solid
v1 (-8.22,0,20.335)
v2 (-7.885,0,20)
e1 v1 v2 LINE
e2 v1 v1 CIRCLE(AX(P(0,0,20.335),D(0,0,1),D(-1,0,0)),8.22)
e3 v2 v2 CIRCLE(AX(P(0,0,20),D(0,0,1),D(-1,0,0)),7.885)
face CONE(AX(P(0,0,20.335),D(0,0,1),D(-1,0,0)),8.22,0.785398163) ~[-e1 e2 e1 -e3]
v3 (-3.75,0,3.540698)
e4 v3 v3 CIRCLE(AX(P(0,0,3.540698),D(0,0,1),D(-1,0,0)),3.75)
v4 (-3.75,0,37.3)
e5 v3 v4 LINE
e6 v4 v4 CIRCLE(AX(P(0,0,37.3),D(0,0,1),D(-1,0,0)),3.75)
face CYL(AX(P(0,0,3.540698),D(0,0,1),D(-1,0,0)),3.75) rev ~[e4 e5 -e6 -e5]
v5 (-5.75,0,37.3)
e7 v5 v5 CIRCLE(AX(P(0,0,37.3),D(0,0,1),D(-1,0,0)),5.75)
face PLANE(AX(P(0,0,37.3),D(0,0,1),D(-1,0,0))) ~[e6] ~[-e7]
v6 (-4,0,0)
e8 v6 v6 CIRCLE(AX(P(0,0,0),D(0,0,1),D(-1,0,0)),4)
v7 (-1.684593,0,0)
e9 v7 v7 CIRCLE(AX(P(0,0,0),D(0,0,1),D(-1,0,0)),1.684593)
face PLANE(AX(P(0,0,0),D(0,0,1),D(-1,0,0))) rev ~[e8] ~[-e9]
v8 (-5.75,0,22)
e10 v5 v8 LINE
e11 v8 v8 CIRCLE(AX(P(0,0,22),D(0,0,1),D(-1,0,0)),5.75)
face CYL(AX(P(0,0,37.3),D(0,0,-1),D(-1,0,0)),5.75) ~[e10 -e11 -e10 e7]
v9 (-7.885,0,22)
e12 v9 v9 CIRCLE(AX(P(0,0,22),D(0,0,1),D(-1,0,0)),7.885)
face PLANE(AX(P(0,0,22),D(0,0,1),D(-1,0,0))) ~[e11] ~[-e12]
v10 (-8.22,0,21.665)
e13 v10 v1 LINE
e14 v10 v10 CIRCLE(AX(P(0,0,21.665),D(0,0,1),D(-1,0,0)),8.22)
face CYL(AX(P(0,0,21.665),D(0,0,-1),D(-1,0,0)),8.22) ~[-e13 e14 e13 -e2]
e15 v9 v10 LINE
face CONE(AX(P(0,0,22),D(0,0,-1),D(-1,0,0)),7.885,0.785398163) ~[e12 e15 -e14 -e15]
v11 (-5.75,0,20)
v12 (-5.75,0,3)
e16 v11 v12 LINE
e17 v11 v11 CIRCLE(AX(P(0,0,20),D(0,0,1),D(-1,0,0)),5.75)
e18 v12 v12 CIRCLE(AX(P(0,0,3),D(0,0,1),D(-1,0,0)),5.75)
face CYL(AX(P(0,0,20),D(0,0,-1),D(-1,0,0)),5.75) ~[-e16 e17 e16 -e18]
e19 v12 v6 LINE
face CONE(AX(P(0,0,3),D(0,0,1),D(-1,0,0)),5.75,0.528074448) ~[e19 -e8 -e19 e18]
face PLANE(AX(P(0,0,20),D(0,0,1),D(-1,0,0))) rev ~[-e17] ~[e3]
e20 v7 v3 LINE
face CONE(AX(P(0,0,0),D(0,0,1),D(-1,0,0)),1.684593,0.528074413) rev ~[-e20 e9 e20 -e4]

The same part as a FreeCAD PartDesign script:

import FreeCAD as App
import Part
import Sketcher
from FreeCAD import Vector


def add_polygon(sketch, points):
    """Adds a closed chain of lines whose ends are joined by coincident constraints."""
    first, n = sketch.GeometryCount, len(points)
    for a, b in zip(points, points[1:] + points[:1]):
        sketch.addGeometry(Part.LineSegment(App.Vector(*a, 0), App.Vector(*b, 0)), False)
    for i in range(n):
        sketch.addConstraint(Sketcher.Constraint("Coincident", first + i, 2, first + (i + 1) % n, 1))

doc = App.newDocument("Part")
body = doc.addObject("PartDesign::Body", "Body")

# Sketch on XZ plane
sketch1 = body.newObject("Sketcher::SketchObject", "Sketch")
sketch1.AttachmentSupport = (doc.getObject("XZ_Plane"), [""])
sketch1.MapMode = "FlatFace"
add_polygon(sketch1, [(-1.68, 0), (-3.75, 3.54), (-3.75, 37.3), (-5.75, 37.3), (-5.75, 22), (-7.88, 22), (-8.22, 21.66), (-8.22, 20.34), (-7.88, 20), (-5.75, 20), (-5.75, 3), (-4, 0)])  # lines 0-11
sketch1.addConstraint(Sketcher.Constraint("Vertical", 1))
sketch1.addConstraint(Sketcher.Constraint("Horizontal", 2))
sketch1.addConstraint(Sketcher.Constraint("Vertical", 3))
sketch1.addConstraint(Sketcher.Constraint("Horizontal", 4))
sketch1.addConstraint(Sketcher.Constraint("Vertical", 6))
sketch1.addConstraint(Sketcher.Constraint("Horizontal", 8))
sketch1.addConstraint(Sketcher.Constraint("Vertical", 9))
sketch1.addConstraint(Sketcher.Constraint("Horizontal", 11))
sketch1.addConstraint(Sketcher.Constraint("PointOnObject", 10, 2, -1))
sketch1.addConstraint(Sketcher.Constraint("Perpendicular", 5, 7))
sketch1.addConstraint(Sketcher.Constraint("Parallel", 0, 10))
sketch1.addConstraint(Sketcher.Constraint("Vertical", 4, 2, 7, 2))
sketch1.addConstraint(Sketcher.Constraint("Vertical", 3, 2, 8, 2))
sketch1.addConstraint(Sketcher.Constraint("Equal", 5, 7))
sketch1.addConstraint(Sketcher.Constraint("DistanceX", 2, 2, 2, 1, 2.0))
sketch1.addConstraint(Sketcher.Constraint("DistanceY", 9, 2, 9, 1, 17.0))
sketch1.addConstraint(Sketcher.Constraint("DistanceY", 3, 2, 3, 1, 15.3))
sketch1.addConstraint(Sketcher.Constraint("DistanceY", -1, 1, 3, 2, 22.0))
sketch1.addConstraint(Sketcher.Constraint("DistanceY", -1, 1, 7, 2, 20.0))
sketch1.addConstraint(Sketcher.Constraint("DistanceX", 10, 2, -1, 1, 4.0))
sketch1.addConstraint(Sketcher.Constraint("DistanceY", 6, 2, 6, 1, 1.33))
sketch1.addConstraint(Sketcher.Constraint("DistanceX", 4, 2, 4, 1, 2.135))
sketch1.addConstraint(Sketcher.Constraint("DistanceX", 0, 2, -1, 1, 3.75))
sketch1.addConstraint(Sketcher.Constraint("DistanceY", 1, 1, 1, 2, 33.759302))
revolution = body.newObject("PartDesign::Revolution", "Revolution")
revolution.Profile = sketch1
revolution.ReferenceAxis = (sketch1, ["V_Axis"])
revolution.Angle = 360

doc.recompute()
